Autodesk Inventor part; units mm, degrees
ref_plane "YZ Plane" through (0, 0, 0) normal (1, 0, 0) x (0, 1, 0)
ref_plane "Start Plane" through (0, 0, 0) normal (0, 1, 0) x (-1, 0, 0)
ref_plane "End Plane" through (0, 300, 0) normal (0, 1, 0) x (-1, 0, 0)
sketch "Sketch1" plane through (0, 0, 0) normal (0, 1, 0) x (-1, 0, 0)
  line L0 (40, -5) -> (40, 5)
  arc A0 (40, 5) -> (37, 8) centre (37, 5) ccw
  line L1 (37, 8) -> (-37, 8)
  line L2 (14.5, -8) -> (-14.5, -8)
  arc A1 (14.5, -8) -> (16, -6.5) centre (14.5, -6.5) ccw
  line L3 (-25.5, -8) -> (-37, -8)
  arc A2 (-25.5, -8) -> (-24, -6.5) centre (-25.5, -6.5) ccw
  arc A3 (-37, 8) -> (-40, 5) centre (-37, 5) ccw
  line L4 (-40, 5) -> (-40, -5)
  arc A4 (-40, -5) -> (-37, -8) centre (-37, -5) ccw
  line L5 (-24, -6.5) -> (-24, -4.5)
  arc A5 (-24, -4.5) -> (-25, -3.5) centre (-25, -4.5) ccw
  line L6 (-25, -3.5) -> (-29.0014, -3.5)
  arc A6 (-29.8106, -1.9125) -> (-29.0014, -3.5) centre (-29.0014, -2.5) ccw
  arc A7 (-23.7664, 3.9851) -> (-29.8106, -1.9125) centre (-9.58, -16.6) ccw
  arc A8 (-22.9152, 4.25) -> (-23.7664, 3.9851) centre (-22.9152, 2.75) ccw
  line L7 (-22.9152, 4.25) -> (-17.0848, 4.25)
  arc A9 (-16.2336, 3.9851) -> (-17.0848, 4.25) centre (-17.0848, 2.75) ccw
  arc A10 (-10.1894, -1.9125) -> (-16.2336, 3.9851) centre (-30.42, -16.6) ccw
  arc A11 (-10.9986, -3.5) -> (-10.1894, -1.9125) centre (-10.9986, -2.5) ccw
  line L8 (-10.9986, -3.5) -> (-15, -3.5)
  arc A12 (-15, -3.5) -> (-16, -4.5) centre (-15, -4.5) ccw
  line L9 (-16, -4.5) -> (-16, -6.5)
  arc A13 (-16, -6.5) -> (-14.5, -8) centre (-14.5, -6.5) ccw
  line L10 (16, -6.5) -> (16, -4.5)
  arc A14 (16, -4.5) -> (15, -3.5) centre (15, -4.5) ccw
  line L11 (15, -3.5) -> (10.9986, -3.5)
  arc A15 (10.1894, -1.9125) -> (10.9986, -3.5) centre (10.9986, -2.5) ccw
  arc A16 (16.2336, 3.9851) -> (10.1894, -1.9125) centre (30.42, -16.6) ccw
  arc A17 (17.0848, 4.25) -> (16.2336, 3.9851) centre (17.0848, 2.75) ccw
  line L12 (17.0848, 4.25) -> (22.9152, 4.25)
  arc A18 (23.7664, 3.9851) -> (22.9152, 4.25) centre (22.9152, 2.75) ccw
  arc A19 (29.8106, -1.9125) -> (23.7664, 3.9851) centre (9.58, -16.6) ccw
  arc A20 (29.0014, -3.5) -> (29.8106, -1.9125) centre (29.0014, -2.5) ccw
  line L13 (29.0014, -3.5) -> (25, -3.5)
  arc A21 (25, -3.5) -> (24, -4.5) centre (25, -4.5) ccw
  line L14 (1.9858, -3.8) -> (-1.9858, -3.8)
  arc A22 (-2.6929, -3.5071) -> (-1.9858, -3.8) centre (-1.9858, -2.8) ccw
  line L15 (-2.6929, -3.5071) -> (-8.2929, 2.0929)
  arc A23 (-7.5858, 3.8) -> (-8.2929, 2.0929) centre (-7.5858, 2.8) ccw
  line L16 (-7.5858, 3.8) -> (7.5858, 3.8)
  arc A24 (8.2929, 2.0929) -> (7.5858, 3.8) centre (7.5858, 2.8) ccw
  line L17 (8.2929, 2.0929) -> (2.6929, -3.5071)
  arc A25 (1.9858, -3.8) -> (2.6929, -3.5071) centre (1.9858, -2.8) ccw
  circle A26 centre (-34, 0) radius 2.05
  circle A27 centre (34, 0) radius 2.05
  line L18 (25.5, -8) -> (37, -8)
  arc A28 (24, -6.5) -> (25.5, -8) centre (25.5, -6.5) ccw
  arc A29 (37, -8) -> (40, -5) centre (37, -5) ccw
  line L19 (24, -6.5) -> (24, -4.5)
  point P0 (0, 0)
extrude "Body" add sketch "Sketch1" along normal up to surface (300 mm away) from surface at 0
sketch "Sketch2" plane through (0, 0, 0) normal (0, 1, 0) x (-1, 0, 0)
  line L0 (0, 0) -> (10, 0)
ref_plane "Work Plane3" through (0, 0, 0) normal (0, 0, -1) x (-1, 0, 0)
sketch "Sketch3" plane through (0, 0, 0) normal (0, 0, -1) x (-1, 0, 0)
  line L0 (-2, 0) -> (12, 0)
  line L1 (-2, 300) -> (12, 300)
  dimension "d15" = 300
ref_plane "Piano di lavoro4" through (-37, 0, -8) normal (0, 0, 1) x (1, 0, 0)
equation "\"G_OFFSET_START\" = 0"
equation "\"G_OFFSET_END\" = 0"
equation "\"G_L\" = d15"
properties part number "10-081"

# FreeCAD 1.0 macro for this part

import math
import FreeCAD as App
import Part
import Sketcher

V = App.Vector

doc = App.newDocument("Part")
body = doc.addObject("PartDesign::Body", "Body")

# Sketch on XZ plane
sketch1 = doc.addObject("Sketcher::SketchObject", "Sketch")
body.addObject(sketch1)
sketch1.AttachmentSupport = (doc.XZ_Plane, [""])
sketch1.MapMode = "FlatFace"
sketch1.addGeometry(Part.ArcOfCircle(Part.Circle(V(-37, -5, 0), V(0, 0, 1), 3), math.radians(180), math.radians(270)), False)
sketch1.addGeometry(Part.LineSegment(V(-40, -5, 0), V(-40, 5, 0)), False)
sketch1.addGeometry(Part.ArcOfCircle(Part.Circle(V(-37, 5, 0), V(0, 0, 1), 3), math.radians(90), math.radians(180)), False)
sketch1.addGeometry(Part.LineSegment(V(-37, 8, 0), V(37, 8, 0)), False)
sketch1.addGeometry(Part.ArcOfCircle(Part.Circle(V(37, 5, 0), V(0, 0, 1), 3), math.radians(0), math.radians(90)), False)
sketch1.addGeometry(Part.LineSegment(V(40, 5, 0), V(40, -5, 0)), False)
sketch1.addGeometry(Part.ArcOfCircle(Part.Circle(V(37, -5, 0), V(0, 0, 1), 3), math.radians(-90), math.radians(0)), False)
sketch1.addGeometry(Part.LineSegment(V(37, -8, 0), V(25.5, -8, 0)), False)
sketch1.addGeometry(Part.ArcOfCircle(Part.Circle(V(25.5, -6.5, 0), V(0, 0, 1), 1.5), math.radians(180), math.radians(270)), False)
sketch1.addGeometry(Part.LineSegment(V(24, -6.5, 0), V(24, -4.5, 0)), False)
sketch1.addGeometry(Part.ArcOfCircle(Part.Circle(V(25, -4.5, 0), V(0, 0, 1), 1), math.radians(90), math.radians(180)), False)
sketch1.addGeometry(Part.LineSegment(V(25, -3.5, 0), V(29.0014, -3.5, 0)), False)
sketch1.addGeometry(Part.ArcOfCircle(Part.Circle(V(29.0014, -2.5, 0), V(0, 0, 1), 0.99998), math.radians(-90), math.radians(35.980614)), False)
sketch1.addGeometry(Part.ArcOfCircle(Part.Circle(V(9.58, -16.6, 0), V(0, 0, 1), 25.000006), math.radians(35.979806), math.radians(55.426994)), False)
sketch1.addGeometry(Part.ArcOfCircle(Part.Circle(V(22.9152, 2.75, 0), V(0, 0, 1), 1.5), math.radians(55.426361), math.radians(90)), False)
sketch1.addGeometry(Part.LineSegment(V(22.9152, 4.25, 0), V(17.0848, 4.25, 0)), False)
sketch1.addGeometry(Part.ArcOfCircle(Part.Circle(V(17.0848, 2.75, 0), V(0, 0, 1), 1.500004), math.radians(90), math.radians(124.573639)), False)
sketch1.addGeometry(Part.ArcOfCircle(Part.Circle(V(30.42, -16.6, 0), V(0, 0, 1), 24.999997), math.radians(124.573006), math.radians(144.020194)), False)
sketch1.addGeometry(Part.ArcOfCircle(Part.Circle(V(10.9986, -2.5, 0), V(0, 0, 1), 1), math.radians(144.019386), math.radians(270)), False)
sketch1.addGeometry(Part.LineSegment(V(10.9986, -3.5, 0), V(15, -3.5, 0)), False)
sketch1.addGeometry(Part.ArcOfCircle(Part.Circle(V(15, -4.5, 0), V(0, 0, 1), 1), math.radians(0), math.radians(90)), False)
sketch1.addGeometry(Part.LineSegment(V(16, -4.5, 0), V(16, -6.5, 0)), False)
sketch1.addGeometry(Part.ArcOfCircle(Part.Circle(V(14.5, -6.5, 0), V(0, 0, 1), 1.5), math.radians(-90), math.radians(0)), False)
sketch1.addGeometry(Part.LineSegment(V(14.5, -8, 0), V(-14.5, -8, 0)), False)
sketch1.addGeometry(Part.ArcOfCircle(Part.Circle(V(-14.5, -6.5, 0), V(0, 0, 1), 1.5), math.radians(180), math.radians(270)), False)
sketch1.addGeometry(Part.LineSegment(V(-16, -6.5, 0), V(-16, -4.5, 0)), False)
sketch1.addGeometry(Part.ArcOfCircle(Part.Circle(V(-15, -4.5, 0), V(0, 0, 1), 1), math.radians(90), math.radians(180)), False)
sketch1.addGeometry(Part.LineSegment(V(-15, -3.5, 0), V(-10.9986, -3.5, 0)), False)
sketch1.addGeometry(Part.ArcOfCircle(Part.Circle(V(-10.9986, -2.5, 0), V(0, 0, 1), 0.99998), math.radians(-90), math.radians(35.980614)), False)
sketch1.addGeometry(Part.ArcOfCircle(Part.Circle(V(-30.42, -16.6, 0), V(0, 0, 1), 25.000006), math.radians(35.979806), math.radians(55.426994)), False)
sketch1.addGeometry(Part.ArcOfCircle(Part.Circle(V(-17.0848, 2.75, 0), V(0, 0, 1), 1.5), math.radians(55.426361), math.radians(90)), False)
sketch1.addGeometry(Part.LineSegment(V(-17.0848, 4.25, 0), V(-22.9152, 4.25, 0)), False)
sketch1.addGeometry(Part.ArcOfCircle(Part.Circle(V(-22.9152, 2.75, 0), V(0, 0, 1), 1.500004), math.radians(90), math.radians(124.573639)), False)
sketch1.addGeometry(Part.ArcOfCircle(Part.Circle(V(-9.58, -16.6, 0), V(0, 0, 1), 24.999997), math.radians(124.573006), math.radians(144.020194)), False)
sketch1.addGeometry(Part.ArcOfCircle(Part.Circle(V(-29.0014, -2.5, 0), V(0, 0, 1), 1), math.radians(144.019386), math.radians(270)), False)
sketch1.addGeometry(Part.LineSegment(V(-29.0014, -3.5, 0), V(-25, -3.5, 0)), False)
sketch1.addGeometry(Part.ArcOfCircle(Part.Circle(V(-25, -4.5, 0), V(0, 0, 1), 1), math.radians(0), math.radians(90)), False)
sketch1.addGeometry(Part.LineSegment(V(-24, -4.5, 0), V(-24, -6.5, 0)), False)
sketch1.addGeometry(Part.ArcOfCircle(Part.Circle(V(-25.5, -6.5, 0), V(0, 0, 1), 1.5), math.radians(-90), math.radians(0)), False)
sketch1.addGeometry(Part.LineSegment(V(-25.5, -8, 0), V(-37, -8, 0)), False)
sketch1.addGeometry(Part.ArcOfCircle(Part.Circle(V(-1.9858, -2.8, 0), V(0, 0, 1), 1), math.radians(-135), math.radians(-90)), False)
sketch1.addGeometry(Part.LineSegment(V(-1.9858, -3.8, 0), V(1.9858, -3.8, 0)), False)
sketch1.addGeometry(Part.ArcOfCircle(Part.Circle(V(1.9858, -2.8, 0), V(0, 0, 1), 0.99999), math.radians(-90), math.radians(-45)), False)
sketch1.addGeometry(Part.LineSegment(V(2.6929, -3.5071, 0), V(8.2929, 2.0929, 0)), False)
sketch1.addGeometry(Part.ArcOfCircle(Part.Circle(V(7.5858, 2.8, 0), V(0, 0, 1), 1), math.radians(-45), math.radians(90)), False)
sketch1.addGeometry(Part.LineSegment(V(7.5858, 3.8, 0), V(-7.5858, 3.8, 0)), False)
sketch1.addGeometry(Part.ArcOfCircle(Part.Circle(V(-7.5858, 2.8, 0), V(0, 0, 1), 0.99999), math.radians(90), math.radians(225)), False)
sketch1.addGeometry(Part.LineSegment(V(-8.2929, 2.0929, 0), V(-2.6929, -3.5071, 0)), False)
sketch1.addGeometry(Part.Circle(V(34, 0, 0), V(0, 0, 1), 2.05), False)
sketch1.addGeometry(Part.Circle(V(-34, 0, 0), V(0, 0, 1), 2.05), False)
sketch1.addConstraint(Sketcher.Constraint("Tangent", 0, 1, 1, 1))
sketch1.addConstraint(Sketcher.Constraint("Tangent", 1, 2, 2, 2))
sketch1.addConstraint(Sketcher.Constraint("Tangent", 2, 1, 3, 1))
sketch1.addConstraint(Sketcher.Constraint("Tangent", 3, 2, 4, 2))
sketch1.addConstraint(Sketcher.Constraint("Tangent", 4, 1, 5, 1))
sketch1.addConstraint(Sketcher.Constraint("Tangent", 5, 2, 6, 2))
sketch1.addConstraint(Sketcher.Constraint("Tangent", 6, 1, 7, 1))
sketch1.addConstraint(Sketcher.Constraint("Tangent", 7, 2, 8, 2))
sketch1.addConstraint(Sketcher.Constraint("Tangent", 8, 1, 9, 1))
sketch1.addConstraint(Sketcher.Constraint("Tangent", 9, 2, 10, 2))
sketch1.addConstraint(Sketcher.Constraint("Tangent", 10, 1, 11, 1))
sketch1.addConstraint(Sketcher.Constraint("Tangent", 11, 2, 12, 1))
sketch1.addConstraint(Sketcher.Constraint("Tangent", 12, 2, 13, 1))
sketch1.addConstraint(Sketcher.Constraint("Tangent", 13, 2, 14, 1))
sketch1.addConstraint(Sketcher.Constraint("Tangent", 14, 2, 15, 1))
sketch1.addConstraint(Sketcher.Constraint("Tangent", 15, 2, 16, 1))
sketch1.addConstraint(Sketcher.Constraint("Tangent", 16, 2, 17, 1))
sketch1.addConstraint(Sketcher.Constraint("Tangent", 17, 2, 18, 1))
sketch1.addConstraint(Sketcher.Constraint("Tangent", 18, 2, 19, 1))
sketch1.addConstraint(Sketcher.Constraint("Tangent", 19, 2, 20, 2))
sketch1.addConstraint(Sketcher.Constraint("Tangent", 20, 1, 21, 1))
sketch1.addConstraint(Sketcher.Constraint("Tangent", 21, 2, 22, 2))
sketch1.addConstraint(Sketcher.Constraint("Tangent", 22, 1, 23, 1))
sketch1.addConstraint(Sketcher.Constraint("Tangent", 23, 2, 24, 2))
sketch1.addConstraint(Sketcher.Constraint("Tangent", 24, 1, 25, 1))
sketch1.addConstraint(Sketcher.Constraint("Tangent", 25, 2, 26, 2))
sketch1.addConstraint(Sketcher.Constraint("Tangent", 26, 1, 27, 1))
sketch1.addConstraint(Sketcher.Constraint("Tangent", 27, 2, 28, 1))
sketch1.addConstraint(Sketcher.Constraint("Tangent", 28, 2, 29, 1))
sketch1.addConstraint(Sketcher.Constraint("Tangent", 29, 2, 30, 1))
sketch1.addConstraint(Sketcher.Constraint("Tangent", 30, 2, 31, 1))
sketch1.addConstraint(Sketcher.Constraint("Tangent", 31, 2, 32, 1))
sketch1.addConstraint(Sketcher.Constraint("Tangent", 32, 2, 33, 1))
sketch1.addConstraint(Sketcher.Constraint("Tangent", 33, 2, 34, 1))
sketch1.addConstraint(Sketcher.Constraint("Tangent", 34, 2, 35, 1))
sketch1.addConstraint(Sketcher.Constraint("Tangent", 35, 2, 36, 2))
sketch1.addConstraint(Sketcher.Constraint("Tangent", 36, 1, 37, 1))
sketch1.addConstraint(Sketcher.Constraint("Tangent", 37, 2, 38, 2))
sketch1.addConstraint(Sketcher.Constraint("Tangent", 38, 1, 39, 1))
sketch1.addConstraint(Sketcher.Constraint("Tangent", 39, 2, 0, 2))
sketch1.addConstraint(Sketcher.Constraint("Tangent", 40, 2, 41, 1))
sketch1.addConstraint(Sketcher.Constraint("Tangent", 41, 2, 42, 1))
sketch1.addConstraint(Sketcher.Constraint("Tangent", 42, 2, 43, 1))
sketch1.addConstraint(Sketcher.Constraint("Tangent", 43, 2, 44, 1))
sketch1.addConstraint(Sketcher.Constraint("Tangent", 44, 2, 45, 1))
sketch1.addConstraint(Sketcher.Constraint("Tangent", 45, 2, 46, 1))
sketch1.addConstraint(Sketcher.Constraint("Tangent", 46, 2, 47, 1))
sketch1.addConstraint(Sketcher.Constraint("Tangent", 47, 2, 40, 1))
sketch1.addConstraint(Sketcher.Constraint("Vertical", 1))
sketch1.addConstraint(Sketcher.Constraint("Horizontal", 3))
sketch1.addConstraint(Sketcher.Constraint("Vertical", 5))
sketch1.addConstraint(Sketcher.Constraint("Horizontal", 7))
sketch1.addConstraint(Sketcher.Constraint("Vertical", 9))
sketch1.addConstraint(Sketcher.Constraint("Horizontal", 11))
sketch1.addConstraint(Sketcher.Constraint("Horizontal", 15))
sketch1.addConstraint(Sketcher.Constraint("Horizontal", 19))
sketch1.addConstraint(Sketcher.Constraint("Vertical", 21))
sketch1.addConstraint(Sketcher.Constraint("Horizontal", 23))
sketch1.addConstraint(Sketcher.Constraint("Vertical", 25))
sketch1.addConstraint(Sketcher.Constraint("Horizontal", 27))
sketch1.addConstraint(Sketcher.Constraint("Horizontal", 31))
sketch1.addConstraint(Sketcher.Constraint("Horizontal", 35))
sketch1.addConstraint(Sketcher.Constraint("Vertical", 37))
sketch1.addConstraint(Sketcher.Constraint("Horizontal", 39))
sketch1.addConstraint(Sketcher.Constraint("Horizontal", 41))
sketch1.addConstraint(Sketcher.Constraint("Horizontal", 45))
sketch1.addConstraint(Sketcher.Constraint("Equal", 0, 2))
sketch1.addConstraint(Sketcher.Constraint("Equal", 2, 4))
sketch1.addConstraint(Sketcher.Constraint("Equal", 4, 6))
sketch1.addConstraint(Sketcher.Constraint("Equal", 10, 12))
sketch1.addConstraint(Sketcher.Constraint("Equal", 8, 14))
sketch1.addConstraint(Sketcher.Constraint("Equal", 14, 16))
sketch1.addConstraint(Sketcher.Constraint("Equal", 13, 17))
sketch1.addConstraint(Sketcher.Constraint("Equal", 12, 18))
sketch1.addConstraint(Sketcher.Constraint("Equal", 18, 20))
sketch1.addConstraint(Sketcher.Constraint("Equal", 16, 22))
sketch1.addConstraint(Sketcher.Constraint("Equal", 22, 24))
sketch1.addConstraint(Sketcher.Constraint("Equal", 20, 26))
sketch1.addConstraint(Sketcher.Constraint("Equal", 26, 28))
sketch1.addConstraint(Sketcher.Constraint("Equal", 17, 29))
sketch1.addConstraint(Sketcher.Constraint("Equal", 24, 30))
sketch1.addConstraint(Sketcher.Constraint("Equal", 30, 32))
sketch1.addConstraint(Sketcher.Constraint("Equal", 29, 33))
sketch1.addConstraint(Sketcher.Constraint("Equal", 28, 34))
sketch1.addConstraint(Sketcher.Constraint("Equal", 34, 36))
sketch1.addConstraint(Sketcher.Constraint("Equal", 32, 38))
sketch1.addConstraint(Sketcher.Constraint("Equal", 36, 40))
sketch1.addConstraint(Sketcher.Constraint("Equal", 40, 42))
sketch1.addConstraint(Sketcher.Constraint("Equal", 42, 44))
sketch1.addConstraint(Sketcher.Constraint("Equal", 44, 46))
sketch1.addConstraint(Sketcher.Constraint("Equal", 48, 49))
sketch1.addConstraint(Sketcher.Constraint("Symmetric", 0, 3, 4, 3, -1, 1))
sketch1.addConstraint(Sketcher.Constraint("Symmetric", 48, 3, 49, 3, -1, 1))
sketch1.addConstraint(Sketcher.Constraint("Symmetric", 20, 3, 26, 3, -2))
sketch1.addConstraint(Sketcher.Constraint("Symmetric", 17, 3, 29, 3, -2))
sketch1.addConstraint(Sketcher.Constraint("Symmetric", 14, 3, 32, 3, -2))
sketch1.addConstraint(Sketcher.Constraint("Symmetric", 12, 3, 34, 3, -2))
sketch1.addConstraint(Sketcher.Constraint("Symmetric", 8, 3, 38, 3, -2))
sketch1.addConstraint(Sketcher.Constraint("Symmetric", 43, 2, 46, 2, -2))
sketch1.addConstraint(Sketcher.Constraint("PointOnObject", 48, 3, -1))
sketch1.addConstraint(Sketcher.Constraint("Perpendicular", 43, 47))
sketch1.addConstraint(Sketcher.Constraint("Horizontal", 13, 3, 17, 3))
sketch1.addConstraint(Sketcher.Constraint("Horizontal", 12, 3, 18, 3))
sketch1.addConstraint(Sketcher.Constraint("Horizontal", 8, 3, 22, 3))
sketch1.addConstraint(Sketcher.Constraint("Equal", 11, 19))
sketch1.addConstraint(Sketcher.Constraint("Radius", 0, 3.0))
sketch1.addConstraint(Sketcher.Constraint("Radius", 10, 1.0))
sketch1.addConstraint(Sketcher.Constraint("Radius", 13, 25.0))
sketch1.addConstraint(Sketcher.Constraint("Diameter", 48, 4.1))
sketch1.addConstraint(Sketcher.Constraint("Radius", 8, 1.5))
sketch1.addConstraint(Sketcher.Constraint("DistanceX", 3, 1, 3, 2, 74.0))
sketch1.addConstraint(Sketcher.Constraint("DistanceX", 23, 2, 23, 1, 29.0))
sketch1.addConstraint(Sketcher.Constraint("DistanceY", 1, 1, 1, 2, 10.0))
sketch1.addConstraint(Sketcher.Constraint("DistanceY", 9, 1, 9, 2, 2.0))
sketch1.addConstraint(Sketcher.Constraint("DistanceX", 7, 2, 7, 1, 11.5))
sketch1.addConstraint(Sketcher.Constraint("DistanceX", -1, 1, 48, 3, 34.0))
sketch1.addConstraint(Sketcher.Constraint("DistanceY", 13, 3, -1, 1, 16.6))
sketch1.addConstraint(Sketcher.Constraint("DistanceY", 40, 3, -1, 1, 2.8))
sketch1.addConstraint(Sketcher.Constraint("DistanceY", -1, 1, 44, 3, 2.8))
sketch1.addConstraint(Sketcher.Constraint("DistanceX", -1, 1, 13, 3, 9.58))
sketch1.addConstraint(Sketcher.Constraint("DistanceY", -1, 1, 14, 3, 2.75))
sketch1.addConstraint(Sketcher.Constraint("DistanceX", 41, 1, 41, 2, 3.9716))
pad1 = doc.addObject("PartDesign::Pad", "Pad")
body.addObject(pad1)
pad1.Profile = sketch1
pad1.Length = 300
pad1.Reversed = True

doc.recompute()
